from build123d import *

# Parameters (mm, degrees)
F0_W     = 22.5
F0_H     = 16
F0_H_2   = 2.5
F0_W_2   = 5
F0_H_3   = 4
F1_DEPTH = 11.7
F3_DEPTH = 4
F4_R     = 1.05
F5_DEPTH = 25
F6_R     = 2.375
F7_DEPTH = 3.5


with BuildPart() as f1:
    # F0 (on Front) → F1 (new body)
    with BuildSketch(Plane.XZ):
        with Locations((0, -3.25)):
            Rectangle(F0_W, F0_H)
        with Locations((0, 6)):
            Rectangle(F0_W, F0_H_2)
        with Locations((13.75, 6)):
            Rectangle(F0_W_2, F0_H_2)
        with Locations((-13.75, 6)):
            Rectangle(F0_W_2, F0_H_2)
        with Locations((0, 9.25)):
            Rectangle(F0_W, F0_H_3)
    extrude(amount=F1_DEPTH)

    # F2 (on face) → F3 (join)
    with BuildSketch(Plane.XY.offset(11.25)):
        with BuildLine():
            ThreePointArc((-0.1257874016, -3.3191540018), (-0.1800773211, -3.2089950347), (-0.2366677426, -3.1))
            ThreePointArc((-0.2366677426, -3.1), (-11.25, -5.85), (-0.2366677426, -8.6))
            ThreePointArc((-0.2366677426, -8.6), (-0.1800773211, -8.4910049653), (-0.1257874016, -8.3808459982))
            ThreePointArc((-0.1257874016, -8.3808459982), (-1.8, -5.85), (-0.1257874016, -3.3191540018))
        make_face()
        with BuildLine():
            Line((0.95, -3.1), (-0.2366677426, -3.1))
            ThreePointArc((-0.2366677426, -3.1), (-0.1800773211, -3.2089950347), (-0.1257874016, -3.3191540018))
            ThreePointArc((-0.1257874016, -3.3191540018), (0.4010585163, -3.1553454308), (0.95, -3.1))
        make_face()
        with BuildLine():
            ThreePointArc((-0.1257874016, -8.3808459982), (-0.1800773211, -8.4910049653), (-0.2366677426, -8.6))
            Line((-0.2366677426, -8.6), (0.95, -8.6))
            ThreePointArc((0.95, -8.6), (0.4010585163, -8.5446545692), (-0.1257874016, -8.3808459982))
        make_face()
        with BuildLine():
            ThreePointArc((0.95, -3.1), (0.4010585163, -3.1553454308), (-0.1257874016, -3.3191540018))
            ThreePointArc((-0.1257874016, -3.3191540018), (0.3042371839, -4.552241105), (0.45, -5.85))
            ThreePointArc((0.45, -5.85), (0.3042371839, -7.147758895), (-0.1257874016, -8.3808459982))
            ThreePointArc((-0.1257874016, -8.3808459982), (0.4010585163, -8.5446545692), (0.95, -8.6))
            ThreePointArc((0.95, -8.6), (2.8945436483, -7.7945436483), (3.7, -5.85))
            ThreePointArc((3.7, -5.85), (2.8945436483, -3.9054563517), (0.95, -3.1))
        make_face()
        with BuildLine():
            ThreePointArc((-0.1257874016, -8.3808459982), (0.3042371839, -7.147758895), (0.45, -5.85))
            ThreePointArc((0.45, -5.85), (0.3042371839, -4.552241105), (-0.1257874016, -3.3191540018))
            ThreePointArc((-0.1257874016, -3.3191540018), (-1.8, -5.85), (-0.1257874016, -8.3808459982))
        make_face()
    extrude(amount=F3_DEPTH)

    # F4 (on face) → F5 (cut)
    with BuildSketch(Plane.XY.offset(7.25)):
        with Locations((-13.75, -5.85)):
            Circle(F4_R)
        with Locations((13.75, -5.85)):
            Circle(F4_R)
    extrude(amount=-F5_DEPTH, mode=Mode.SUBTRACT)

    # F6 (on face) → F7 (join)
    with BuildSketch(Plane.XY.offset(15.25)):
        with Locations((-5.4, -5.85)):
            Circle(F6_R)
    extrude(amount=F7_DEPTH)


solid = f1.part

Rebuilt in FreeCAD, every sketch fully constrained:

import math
import FreeCAD as App
import Part
import Sketcher
from FreeCAD import Vector

doc = App.newDocument("Part")
body = doc.addObject("PartDesign::Body", "Body")

# Sketch on XZ plane
sketch1 = body.newObject("Sketcher::SketchObject", "Sketch")
sketch1.AttachmentSupport = (doc.getObject("XZ_Plane"), [""])
sketch1.MapMode = "FlatFace"
sketch1.addGeometry(Part.LineSegment(Vector(-11.25, -11.25, 0), Vector(11.25, -11.25, 0)), False)
sketch1.addGeometry(Part.LineSegment(Vector(11.25, -11.25, 0), Vector(11.25, 4.75, 0)), False)
sketch1.addGeometry(Part.LineSegment(Vector(11.25, 4.75, 0), Vector(16.25, 4.75, 0)), False)
sketch1.addGeometry(Part.LineSegment(Vector(16.25, 4.75, 0), Vector(16.25, 7.25, 0)), False)
sketch1.addGeometry(Part.LineSegment(Vector(16.25, 7.25, 0), Vector(11.25, 7.25, 0)), False)
sketch1.addGeometry(Part.LineSegment(Vector(11.25, 7.25, 0), Vector(11.25, 11.25, 0)), False)
sketch1.addGeometry(Part.LineSegment(Vector(11.25, 11.25, 0), Vector(-11.25, 11.25, 0)), False)
sketch1.addGeometry(Part.LineSegment(Vector(-11.25, 11.25, 0), Vector(-11.25, 7.25, 0)), False)
sketch1.addGeometry(Part.LineSegment(Vector(-11.25, 7.25, 0), Vector(-16.25, 7.25, 0)), False)
sketch1.addGeometry(Part.LineSegment(Vector(-16.25, 7.25, 0), Vector(-16.25, 4.75, 0)), False)
sketch1.addGeometry(Part.LineSegment(Vector(-16.25, 4.75, 0), Vector(-11.25, 4.75, 0)), False)
sketch1.addGeometry(Part.LineSegment(Vector(-11.25, 4.75, 0), Vector(-11.25, -11.25, 0)), False)
sketch1.addConstraint(Sketcher.Constraint("Coincident", 0, 2, 1, 1))
sketch1.addConstraint(Sketcher.Constraint("Coincident", 1, 2, 2, 1))
sketch1.addConstraint(Sketcher.Constraint("Coincident", 2, 2, 3, 1))
sketch1.addConstraint(Sketcher.Constraint("Coincident", 3, 2, 4, 1))
sketch1.addConstraint(Sketcher.Constraint("Coincident", 4, 2, 5, 1))
sketch1.addConstraint(Sketcher.Constraint("Coincident", 5, 2, 6, 1))
sketch1.addConstraint(Sketcher.Constraint("Coincident", 6, 2, 7, 1))
sketch1.addConstraint(Sketcher.Constraint("Coincident", 7, 2, 8, 1))
sketch1.addConstraint(Sketcher.Constraint("Coincident", 8, 2, 9, 1))
sketch1.addConstraint(Sketcher.Constraint("Coincident", 9, 2, 10, 1))
sketch1.addConstraint(Sketcher.Constraint("Coincident", 10, 2, 11, 1))
sketch1.addConstraint(Sketcher.Constraint("Coincident", 11, 2, 0, 1))
sketch1.addConstraint(Sketcher.Constraint("Horizontal", 0))
sketch1.addConstraint(Sketcher.Constraint("Vertical", 1))
sketch1.addConstraint(Sketcher.Constraint("Horizontal", 2))
sketch1.addConstraint(Sketcher.Constraint("Vertical", 3))
sketch1.addConstraint(Sketcher.Constraint("Horizontal", 4))
sketch1.addConstraint(Sketcher.Constraint("Vertical", 5))
sketch1.addConstraint(Sketcher.Constraint("Horizontal", 6))
sketch1.addConstraint(Sketcher.Constraint("Vertical", 7))
sketch1.addConstraint(Sketcher.Constraint("Horizontal", 8))
sketch1.addConstraint(Sketcher.Constraint("Vertical", 9))
sketch1.addConstraint(Sketcher.Constraint("Horizontal", 10))
sketch1.addConstraint(Sketcher.Constraint("Vertical", 11))
sketch1.addConstraint(Sketcher.Constraint("Symmetric", 0, 2, 6, 2, -1, 1))
sketch1.addConstraint(Sketcher.Constraint("Symmetric", 4, 2, 7, 2, -2))
sketch1.addConstraint(Sketcher.Constraint("Symmetric", 2, 2, 9, 2, -2))
sketch1.addConstraint(Sketcher.Constraint("Vertical", 7, 2, 10, 2))
sketch1.addConstraint(Sketcher.Constraint("DistanceX", 2, 1, 2, 2, 5.0))
sketch1.addConstraint(Sketcher.Constraint("DistanceY", 1, 1, 1, 2, 16.0))
sketch1.addConstraint(Sketcher.Constraint("DistanceY", 5, 1, 5, 2, 4.0))
sketch1.addConstraint(Sketcher.Constraint("DistanceX", 0, 1, 0, 2, 22.5))
sketch1.addConstraint(Sketcher.Constraint("DistanceY", 3, 1, 3, 2, 2.5))
pad1 = body.newObject("PartDesign::Pad", "Pad")
pad1.Profile = sketch1
pad1.Length = 11.7

# Sketch on XY plane
sketch2 = body.newObject("Sketcher::SketchObject", "Sketch001")
sketch2.AttachmentSupport = (doc.getObject("XY_Plane"), [""])
sketch2.MapMode = "FlatFace"
sketch2.AttachmentOffset = App.Placement(Vector(0, 0, 11.25), App.Rotation())
sketch2.addGeometry(Part.ArcOfCircle(Part.Circle(Vector(-5.4, -5.85, 0), Vector(0, 0, 1), 5.85), math.radians(28.039845), math.radians(331.960155)), False)
sketch2.addGeometry(Part.LineSegment(Vector(-0.236668, -8.6, 0), Vector(0.95, -8.6, 0)), False)
sketch2.addGeometry(Part.ArcOfCircle(Part.Circle(Vector(0.95, -5.85, 0), Vector(0, 0, 1), 2.75), math.radians(-90), math.radians(0)), False)
sketch2.addGeometry(Part.ArcOfCircle(Part.Circle(Vector(0.95, -5.85, 0), Vector(0, 0, 1), 2.75), math.radians(0), math.radians(90)), False)
sketch2.addGeometry(Part.LineSegment(Vector(0.95, -3.1, 0), Vector(-0.236668, -3.1, 0)), False)
sketch2.addConstraint(Sketcher.Constraint("Coincident", 0, 2, 1, 1))
sketch2.addConstraint(Sketcher.Constraint("Tangent", 1, 2, 2, 1))
sketch2.addConstraint(Sketcher.Constraint("Tangent", 2, 2, 3, 1))
sketch2.addConstraint(Sketcher.Constraint("Tangent", 3, 2, 4, 1))
sketch2.addConstraint(Sketcher.Constraint("Coincident", 4, 2, 0, 1))
sketch2.addConstraint(Sketcher.Constraint("Horizontal", 1))
sketch2.addConstraint(Sketcher.Constraint("Horizontal", 4))
sketch2.addConstraint(Sketcher.Constraint("Equal", 2, 3))
sketch2.addConstraint(Sketcher.Constraint("Horizontal", 0, 3, 2, 3))
sketch2.addConstraint(Sketcher.Constraint("Horizontal", 3, 3, 2, 2))
sketch2.addConstraint(Sketcher.Constraint("Radius", 0, 5.85))
sketch2.addConstraint(Sketcher.Constraint("Radius", 2, 2.75))
sketch2.addConstraint(Sketcher.Constraint("DistanceX", 0, 3, -1, 1, 5.4))
sketch2.addConstraint(Sketcher.Constraint("DistanceY", 0, 2, -1, 1, 8.6))
sketch2.addConstraint(Sketcher.Constraint("DistanceX", -1, 1, 2, 2, 3.7))
pad2 = body.newObject("PartDesign::Pad", "Pad001")
pad2.Profile = sketch2
pad2.Length = 4

# Sketch on XY plane
sketch3 = body.newObject("Sketcher::SketchObject", "Sketch002")
sketch3.AttachmentSupport = (doc.getObject("XY_Plane"), [""])
sketch3.MapMode = "FlatFace"
sketch3.AttachmentOffset = App.Placement(Vector(0, 0, 7.25), App.Rotation())
sketch3.addGeometry(Part.Circle(Vector(-13.75, -5.85, 0), Vector(0, 0, 1), 1.05), False)
sketch3.addGeometry(Part.Circle(Vector(13.75, -5.85, 0), Vector(0, 0, 1), 1.05), False)
sketch3.addConstraint(Sketcher.Constraint("Equal", 0, 1))
sketch3.addConstraint(Sketcher.Constraint("Symmetric", 0, 3, 1, 3, -2))
sketch3.addConstraint(Sketcher.Constraint("Diameter", 0, 2.1))
sketch3.addConstraint(Sketcher.Constraint("DistanceX", 0, 3, 1, 3, 27.5))
sketch3.addConstraint(Sketcher.Constraint("DistanceY", 0, 3, -1, 1, 5.85))
pocket1 = body.newObject("PartDesign::Pocket", "Pocket")
pocket1.Profile = sketch3
pocket1.Length = 25

# Sketch on XY plane
sketch4 = body.newObject("Sketcher::SketchObject", "Sketch003")
sketch4.AttachmentSupport = (doc.getObject("XY_Plane"), [""])
sketch4.MapMode = "FlatFace"
sketch4.AttachmentOffset = App.Placement(Vector(0, 0, 15.25), App.Rotation())
sketch4.addGeometry(Part.Circle(Vector(-5.4, -5.85, 0), Vector(0, 0, 1), 2.375), False)
sketch4.addConstraint(Sketcher.Constraint("Diameter", 0, 4.75))
sketch4.addConstraint(Sketcher.Constraint("DistanceX", 0, 3, -1, 1, 5.4))
sketch4.addConstraint(Sketcher.Constraint("DistanceY", 0, 3, -1, 1, 5.85))
pad3 = body.newObject("PartDesign::Pad", "Pad002")
pad3.Profile = sketch4
pad3.Length = 3.5

doc.recompute()
